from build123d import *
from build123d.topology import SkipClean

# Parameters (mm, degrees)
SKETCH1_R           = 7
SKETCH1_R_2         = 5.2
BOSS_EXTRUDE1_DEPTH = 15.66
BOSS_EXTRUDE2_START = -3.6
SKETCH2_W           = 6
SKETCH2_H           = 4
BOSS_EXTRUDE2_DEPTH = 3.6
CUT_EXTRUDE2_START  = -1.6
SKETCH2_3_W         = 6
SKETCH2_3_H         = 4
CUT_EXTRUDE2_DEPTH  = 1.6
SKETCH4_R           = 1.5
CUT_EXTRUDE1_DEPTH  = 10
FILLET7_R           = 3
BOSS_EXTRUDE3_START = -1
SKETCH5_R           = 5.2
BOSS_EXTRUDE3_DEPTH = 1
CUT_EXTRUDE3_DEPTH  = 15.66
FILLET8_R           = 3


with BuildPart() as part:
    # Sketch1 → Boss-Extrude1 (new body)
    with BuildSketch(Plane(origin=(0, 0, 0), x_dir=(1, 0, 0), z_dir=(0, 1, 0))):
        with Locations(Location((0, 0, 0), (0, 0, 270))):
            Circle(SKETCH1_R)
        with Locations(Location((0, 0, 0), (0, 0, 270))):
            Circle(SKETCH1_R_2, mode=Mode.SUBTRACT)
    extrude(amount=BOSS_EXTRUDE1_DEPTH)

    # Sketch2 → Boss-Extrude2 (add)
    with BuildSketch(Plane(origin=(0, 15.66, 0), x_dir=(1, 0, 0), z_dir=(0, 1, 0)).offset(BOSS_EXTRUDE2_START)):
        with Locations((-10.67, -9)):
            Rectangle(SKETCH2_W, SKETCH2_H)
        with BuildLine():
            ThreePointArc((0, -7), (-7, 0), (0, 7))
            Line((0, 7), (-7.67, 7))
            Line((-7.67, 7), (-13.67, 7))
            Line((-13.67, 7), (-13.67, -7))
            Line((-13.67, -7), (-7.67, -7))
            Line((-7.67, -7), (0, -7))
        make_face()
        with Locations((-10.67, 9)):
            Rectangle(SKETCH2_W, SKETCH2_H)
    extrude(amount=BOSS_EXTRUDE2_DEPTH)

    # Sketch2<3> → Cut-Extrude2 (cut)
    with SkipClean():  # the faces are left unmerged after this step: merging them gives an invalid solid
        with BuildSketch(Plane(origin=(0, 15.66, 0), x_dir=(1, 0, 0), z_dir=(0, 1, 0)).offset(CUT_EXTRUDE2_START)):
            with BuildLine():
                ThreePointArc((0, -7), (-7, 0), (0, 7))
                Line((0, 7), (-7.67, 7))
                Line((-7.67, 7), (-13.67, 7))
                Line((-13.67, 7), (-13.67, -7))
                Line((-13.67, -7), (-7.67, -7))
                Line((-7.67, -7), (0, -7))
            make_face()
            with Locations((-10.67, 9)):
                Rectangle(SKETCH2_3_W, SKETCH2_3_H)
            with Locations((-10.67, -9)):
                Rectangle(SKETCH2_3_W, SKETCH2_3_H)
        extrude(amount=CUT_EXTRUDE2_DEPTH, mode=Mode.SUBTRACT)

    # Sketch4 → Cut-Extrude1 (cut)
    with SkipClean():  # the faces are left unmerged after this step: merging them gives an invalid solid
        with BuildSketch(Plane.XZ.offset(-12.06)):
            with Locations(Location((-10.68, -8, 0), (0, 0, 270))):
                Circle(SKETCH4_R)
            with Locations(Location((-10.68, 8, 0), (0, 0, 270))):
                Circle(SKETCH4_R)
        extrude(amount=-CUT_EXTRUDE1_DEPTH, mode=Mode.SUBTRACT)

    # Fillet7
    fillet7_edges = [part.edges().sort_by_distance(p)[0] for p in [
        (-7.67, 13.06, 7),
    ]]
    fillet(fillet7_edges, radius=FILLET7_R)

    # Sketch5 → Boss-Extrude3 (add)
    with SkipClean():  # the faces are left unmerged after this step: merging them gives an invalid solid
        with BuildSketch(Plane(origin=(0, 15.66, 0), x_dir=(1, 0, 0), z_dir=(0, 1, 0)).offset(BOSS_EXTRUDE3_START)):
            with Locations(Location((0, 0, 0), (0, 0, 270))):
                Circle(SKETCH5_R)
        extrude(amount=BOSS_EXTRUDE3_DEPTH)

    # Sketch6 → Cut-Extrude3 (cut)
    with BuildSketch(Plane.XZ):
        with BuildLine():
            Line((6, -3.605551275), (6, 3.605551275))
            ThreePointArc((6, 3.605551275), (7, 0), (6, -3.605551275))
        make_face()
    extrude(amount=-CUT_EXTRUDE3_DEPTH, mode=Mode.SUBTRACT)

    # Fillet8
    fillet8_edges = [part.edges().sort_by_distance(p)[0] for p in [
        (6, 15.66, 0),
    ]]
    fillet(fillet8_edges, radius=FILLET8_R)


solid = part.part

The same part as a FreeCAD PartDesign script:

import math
import FreeCAD as App
import Part
import Sketcher

V = App.Vector
Q = App.Units.Quantity


def edges_at(feature, points):
    """Names of the edges that pass closest to the given points."""
    edges = feature.Shape.Edges
    near = lambda p: min(range(len(edges)), key=lambda i: edges[i].distToShape(Part.Vertex(*p))[0])
    return sorted({f"Edge{near(p) + 1}" for p in points})


def add_polygon(sketch, points):
    """Adds a closed chain of lines whose ends are joined by coincident constraints."""
    first, n = sketch.GeometryCount, len(points)
    for a, b in zip(points, points[1:] + points[:1]):
        sketch.addGeometry(Part.LineSegment(App.Vector(*a, 0), App.Vector(*b, 0)), False)
    for i in range(n):
        sketch.addConstraint(Sketcher.Constraint("Coincident", first + i, 2, first + (i + 1) % n, 1))

doc = App.newDocument("Part")
params = doc.addObject("Spreadsheet::Sheet", "Params")
for row, (alias, value) in enumerate([
    ("sketch1_diameter", "14 mm"),
    ("sketch1_diameter2", "10.4 mm"),
    ("pad1_length", "15.66 mm"),
    ("sketch2_radius", "7 mm"),
    ("sketch2_width", "6 mm"),
    ("sketch2_height", "4 mm"),
    ("sketch2_width2", "7.67 mm"),
    ("pad2_length", "3.6 mm"),
    ("sketch3_radius", "7 mm"),
    ("sketch3_width", "6 mm"),
    ("sketch3_height", "4 mm"),
    ("sketch3_width2", "7.67 mm"),
    ("pocket1_length", "1.6 mm"),
    ("sketch4_diameter", "3 mm"),
    ("pocket2_length", "10 mm"),
    ("fillet_radius", "3 mm"),
    ("sketch5_diameter", "10.4 mm"),
    ("pad3_length", "1 mm"),
    ("sketch6_radius", "7 mm"),
    ("pocket3_length", "15.66 mm"),
    ("fillet2_radius", "3 mm"),
], start=1):
    params.set(f"A{row}", alias)
    params.set(f"B{row}", "=" + value)
    params.setAlias(f"B{row}", alias)

body = doc.addObject("PartDesign::Body", "Body")

# Sketch on XZ plane
sketch1 = body.newObject("Sketcher::SketchObject", "Sketch")
sketch1.AttachmentSupport = (doc.getObject("XZ_Plane"), [""])
sketch1.MapMode = "FlatFace"
sketch1.addGeometry(Part.Circle(V(0, 0, 0), V(0, 0, 1), 7), False)
sketch1.addGeometry(Part.Circle(V(0, 0, 0), V(0, 0, 1), 5), False)
sketch1.addConstraint(Sketcher.Constraint("Coincident", 0, 3, -1, 1))
sketch1.addConstraint(Sketcher.Constraint("Coincident", 1, 3, -1, 1))
sketch1.addConstraint(Sketcher.Constraint("Diameter", 0, Q("14 mm")))
sketch1.addConstraint(Sketcher.Constraint("Diameter", 1, Q("10.4 mm")))
sketch1.setExpression("Constraints[2]", "Params.sketch1_diameter")
sketch1.setExpression("Constraints[3]", "Params.sketch1_diameter2")
pad1 = body.newObject("PartDesign::Pad", "Pad")
pad1.Profile = sketch1
pad1.setExpression("Length", "Params.pad1_length")
pad1.Reversed = True

# Sketch on XZ plane
sketch2 = body.newObject("Sketcher::SketchObject", "Sketch001")
sketch2.AttachmentSupport = (doc.getObject("XZ_Plane"), [""])
sketch2.MapMode = "FlatFace"
sketch2.AttachmentOffset = App.Placement(V(0, 0, -12.06), App.Rotation())
sketch2.addGeometry(Part.LineSegment(V(-13.7, 11, 0), V(-7.7, 11, 0)), False)
sketch2.addGeometry(Part.LineSegment(V(-7.7, 11, 0), V(-7.7, 7, 0)), False)
sketch2.addGeometry(Part.LineSegment(V(-7.7, 7, 0), V(0, 7, 0)), False)
sketch2.addGeometry(Part.ArcOfCircle(Part.Circle(V(0, 0, 0), V(0, 0, 1), 7), math.radians(90), math.radians(270)), False)
sketch2.addGeometry(Part.LineSegment(V(0, -7, 0), V(-7.7, -7, 0)), False)
sketch2.addGeometry(Part.LineSegment(V(-7.7, -7, 0), V(-7.7, -11, 0)), False)
sketch2.addGeometry(Part.LineSegment(V(-7.7, -11, 0), V(-13.7, -11, 0)), False)
sketch2.addGeometry(Part.LineSegment(V(-13.7, -11, 0), V(-13.7, 11, 0)), False)
sketch2.addConstraint(Sketcher.Constraint("Coincident", 0, 2, 1, 1))
sketch2.addConstraint(Sketcher.Constraint("Coincident", 1, 2, 2, 1))
sketch2.addConstraint(Sketcher.Constraint("Tangent", 2, 2, 3, 1))
sketch2.addConstraint(Sketcher.Constraint("Tangent", 3, 2, 4, 1))
sketch2.addConstraint(Sketcher.Constraint("Coincident", 4, 2, 5, 1))
sketch2.addConstraint(Sketcher.Constraint("Coincident", 5, 2, 6, 1))
sketch2.addConstraint(Sketcher.Constraint("Coincident", 6, 2, 7, 1))
sketch2.addConstraint(Sketcher.Constraint("Coincident", 7, 2, 0, 1))
sketch2.addConstraint(Sketcher.Constraint("Horizontal", 0))
sketch2.addConstraint(Sketcher.Constraint("Vertical", 1))
sketch2.addConstraint(Sketcher.Constraint("Horizontal", 2))
sketch2.addConstraint(Sketcher.Constraint("Horizontal", 4))
sketch2.addConstraint(Sketcher.Constraint("Vertical", 5))
sketch2.addConstraint(Sketcher.Constraint("Horizontal", 6))
sketch2.addConstraint(Sketcher.Constraint("Vertical", 7))
sketch2.addConstraint(Sketcher.Constraint("Coincident", 3, 3, -1, 1))
sketch2.addConstraint(Sketcher.Constraint("Symmetric", 0, 2, 5, 2, -1))
sketch2.addConstraint(Sketcher.Constraint("Radius", 3, Q("7 mm")))
sketch2.addConstraint(Sketcher.Constraint("DistanceX", 0, 1, 0, 2, Q("6 mm")))
sketch2.addConstraint(Sketcher.Constraint("DistanceY", 1, 2, 1, 1, Q("4 mm")))
sketch2.addConstraint(Sketcher.Constraint("DistanceX", 2, 1, 2, 2, Q("7.67 mm")))
sketch2.setExpression("Constraints[17]", "Params.sketch2_radius")
sketch2.setExpression("Constraints[18]", "Params.sketch2_width")
sketch2.setExpression("Constraints[19]", "Params.sketch2_height")
sketch2.setExpression("Constraints[20]", "Params.sketch2_width2")
pad2 = body.newObject("PartDesign::Pad", "Pad001")
pad2.Profile = sketch2
pad2.setExpression("Length", "Params.pad2_length")
pad2.Reversed = True

# Sketch on XZ plane
sketch3 = body.newObject("Sketcher::SketchObject", "Sketch002")
sketch3.AttachmentSupport = (doc.getObject("XZ_Plane"), [""])
sketch3.MapMode = "FlatFace"
sketch3.AttachmentOffset = App.Placement(V(0, 0, -14.06), App.Rotation())
sketch3.addGeometry(Part.ArcOfCircle(Part.Circle(V(0, 0, 0), V(0, 0, 1), 7), math.radians(90), math.radians(270)), False)  # 0
sketch3.addGeometry(Part.LineSegment(V(0, -7, 0), V(-7.7, -7, 0)), False)  # 1
sketch3.addGeometry(Part.LineSegment(V(-7.7, -7, 0), V(-13.7, -7, 0)), False)  # 2
sketch3.addGeometry(Part.LineSegment(V(-13.7, -7, 0), V(-13.7, 7, 0)), False)  # 3
sketch3.addGeometry(Part.LineSegment(V(-13.7, 7, 0), V(-7.7, 7, 0)), False)  # 4
sketch3.addGeometry(Part.LineSegment(V(-7.7, 7, 0), V(0, 7, 0)), False)  # 5
add_polygon(sketch3, [(-13.7, -11), (-13.7, -7), (-7.7, -7), (-7.7, -11)])  # lines 6-9
add_polygon(sketch3, [(-13.7, 7), (-13.7, 11), (-7.7, 11), (-7.7, 7)])  # lines 10-13
sketch3.addConstraint(Sketcher.Constraint("Tangent", 0, 2, 1, 1))
sketch3.addConstraint(Sketcher.Constraint("Coincident", 1, 2, 2, 1))
sketch3.addConstraint(Sketcher.Constraint("Coincident", 2, 2, 3, 1))
sketch3.addConstraint(Sketcher.Constraint("Coincident", 3, 2, 4, 1))
sketch3.addConstraint(Sketcher.Constraint("Coincident", 4, 2, 5, 1))
sketch3.addConstraint(Sketcher.Constraint("Tangent", 5, 2, 0, 1))
sketch3.addConstraint(Sketcher.Constraint("Horizontal", 1))
sketch3.addConstraint(Sketcher.Constraint("Horizontal", 2))
sketch3.addConstraint(Sketcher.Constraint("Vertical", 3))
sketch3.addConstraint(Sketcher.Constraint("Horizontal", 4))
sketch3.addConstraint(Sketcher.Constraint("Horizontal", 5))
sketch3.addConstraint(Sketcher.Constraint("Vertical", 6))
sketch3.addConstraint(Sketcher.Constraint("Horizontal", 7))
sketch3.addConstraint(Sketcher.Constraint("Vertical", 8))
sketch3.addConstraint(Sketcher.Constraint("Horizontal", 9))
sketch3.addConstraint(Sketcher.Constraint("Vertical", 10))
sketch3.addConstraint(Sketcher.Constraint("Horizontal", 11))
sketch3.addConstraint(Sketcher.Constraint("Vertical", 12))
sketch3.addConstraint(Sketcher.Constraint("Horizontal", 13))
sketch3.addConstraint(Sketcher.Constraint("Coincident", 0, 3, -1, 1))
sketch3.addConstraint(Sketcher.Constraint("Coincident", 6, 2, 2, 2))
sketch3.addConstraint(Sketcher.Constraint("Coincident", 12, 2, 4, 2))
sketch3.addConstraint(Sketcher.Constraint("Symmetric", 9, 2, 10, 2, -1))
sketch3.addConstraint(Sketcher.Constraint("Vertical", 1, 2, 4, 2))
sketch3.addConstraint(Sketcher.Constraint("Vertical", 4, 2, 7, 2))
sketch3.addConstraint(Sketcher.Constraint("Radius", 0, Q("7 mm")))
sketch3.addConstraint(Sketcher.Constraint("DistanceX", 2, 2, 2, 1, Q("6 mm")))
sketch3.addConstraint(Sketcher.Constraint("DistanceY", 6, 1, 6, 2, Q("4 mm")))
sketch3.addConstraint(Sketcher.Constraint("DistanceX", 1, 2, 1, 1, Q("7.67 mm")))
sketch3.setExpression("Constraints[33]", "Params.sketch3_radius")
sketch3.setExpression("Constraints[34]", "Params.sketch3_width")
sketch3.setExpression("Constraints[35]", "Params.sketch3_height")
sketch3.setExpression("Constraints[36]", "Params.sketch3_width2")
pocket1 = body.newObject("PartDesign::Pocket", "Pocket")
pocket1.Profile = sketch3
pocket1.setExpression("Length", "Params.pocket1_length")

# Sketch on XZ plane
sketch4 = body.newObject("Sketcher::SketchObject", "Sketch003")
sketch4.AttachmentSupport = (doc.getObject("XZ_Plane"), [""])
sketch4.MapMode = "FlatFace"
sketch4.AttachmentOffset = App.Placement(V(0, 0, -12.06), App.Rotation())
sketch4.addGeometry(Part.Circle(V(-10.7, -8, 0), V(0, 0, 1), 1.5), False)
sketch4.addGeometry(Part.Circle(V(-10.7, 8, 0), V(0, 0, 1), 1.5), False)
sketch4.addConstraint(Sketcher.Constraint("Equal", 0, 1))
sketch4.addConstraint(Sketcher.Constraint("Symmetric", 0, 3, 1, 3, -1))
sketch4.addConstraint(Sketcher.Constraint("Diameter", 0, Q("3 mm")))
sketch4.addConstraint(Sketcher.Constraint("DistanceY", 0, 3, -1, 1, Q("8 mm")))
sketch4.addConstraint(Sketcher.Constraint("DistanceX", 0, 3, -1, 1, Q("10.68 mm")))
sketch4.setExpression("Constraints[2]", "Params.sketch4_diameter")
pocket2 = body.newObject("PartDesign::Pocket", "Pocket001")
pocket2.Profile = sketch4
pocket2.setExpression("Length", "Params.pocket2_length")
doc.recompute()

fillet = body.newObject("PartDesign::Fillet", "Fillet")
fillet.Base = (pocket2, edges_at(pocket2, [(-7.67, 13.06, 7)]))
fillet.setExpression("Radius", "Params.fillet_radius")

# Sketch on XZ plane
sketch5 = body.newObject("Sketcher::SketchObject", "Sketch004")
sketch5.AttachmentSupport = (doc.getObject("XZ_Plane"), [""])
sketch5.MapMode = "FlatFace"
sketch5.AttachmentOffset = App.Placement(V(0, 0, -14.66), App.Rotation())
sketch5.addGeometry(Part.Circle(V(0, 0, 0), V(0, 0, 1), 5), False)
sketch5.addConstraint(Sketcher.Constraint("Coincident", 0, 3, -1, 1))
sketch5.addConstraint(Sketcher.Constraint("Diameter", 0, Q("10.4 mm")))
sketch5.setExpression("Constraints[1]", "Params.sketch5_diameter")
pad3 = body.newObject("PartDesign::Pad", "Pad002")
pad3.Profile = sketch5
pad3.setExpression("Length", "Params.pad3_length")
pad3.Reversed = True

# Sketch on XZ plane
sketch6 = body.newObject("Sketcher::SketchObject", "Sketch005")
sketch6.AttachmentSupport = (doc.getObject("XZ_Plane"), [""])
sketch6.MapMode = "FlatFace"
sketch6.addGeometry(Part.LineSegment(V(6, 4, 0), V(6, -4, 0)), False)
sketch6.addGeometry(Part.ArcOfCircle(Part.Circle(V(0, 0, 0), V(0, 0, 1), 7), math.radians(-31), math.radians(31)), False)
sketch6.addConstraint(Sketcher.Constraint("Coincident", 0, 1, 1, 2))
sketch6.addConstraint(Sketcher.Constraint("Coincident", 1, 1, 0, 2))
sketch6.addConstraint(Sketcher.Constraint("Vertical", 0))
sketch6.addConstraint(Sketcher.Constraint("Coincident", 1, 3, -1, 1))
sketch6.addConstraint(Sketcher.Constraint("Radius", 1, Q("7 mm")))
sketch6.addConstraint(Sketcher.Constraint("DistanceX", -1, 1, 0, 1, Q("6 mm")))
sketch6.setExpression("Constraints[4]", "Params.sketch6_radius")
pocket3 = body.newObject("PartDesign::Pocket", "Pocket002")
pocket3.Profile = sketch6
pocket3.setExpression("Length", "Params.pocket3_length")
doc.recompute()

fillet2 = body.newObject("PartDesign::Fillet", "Fillet001")
fillet2.Base = (pocket3, edges_at(pocket3, [(6, 15.66, 0)]))
fillet2.setExpression("Radius", "Params.fillet2_radius")

doc.recompute()
